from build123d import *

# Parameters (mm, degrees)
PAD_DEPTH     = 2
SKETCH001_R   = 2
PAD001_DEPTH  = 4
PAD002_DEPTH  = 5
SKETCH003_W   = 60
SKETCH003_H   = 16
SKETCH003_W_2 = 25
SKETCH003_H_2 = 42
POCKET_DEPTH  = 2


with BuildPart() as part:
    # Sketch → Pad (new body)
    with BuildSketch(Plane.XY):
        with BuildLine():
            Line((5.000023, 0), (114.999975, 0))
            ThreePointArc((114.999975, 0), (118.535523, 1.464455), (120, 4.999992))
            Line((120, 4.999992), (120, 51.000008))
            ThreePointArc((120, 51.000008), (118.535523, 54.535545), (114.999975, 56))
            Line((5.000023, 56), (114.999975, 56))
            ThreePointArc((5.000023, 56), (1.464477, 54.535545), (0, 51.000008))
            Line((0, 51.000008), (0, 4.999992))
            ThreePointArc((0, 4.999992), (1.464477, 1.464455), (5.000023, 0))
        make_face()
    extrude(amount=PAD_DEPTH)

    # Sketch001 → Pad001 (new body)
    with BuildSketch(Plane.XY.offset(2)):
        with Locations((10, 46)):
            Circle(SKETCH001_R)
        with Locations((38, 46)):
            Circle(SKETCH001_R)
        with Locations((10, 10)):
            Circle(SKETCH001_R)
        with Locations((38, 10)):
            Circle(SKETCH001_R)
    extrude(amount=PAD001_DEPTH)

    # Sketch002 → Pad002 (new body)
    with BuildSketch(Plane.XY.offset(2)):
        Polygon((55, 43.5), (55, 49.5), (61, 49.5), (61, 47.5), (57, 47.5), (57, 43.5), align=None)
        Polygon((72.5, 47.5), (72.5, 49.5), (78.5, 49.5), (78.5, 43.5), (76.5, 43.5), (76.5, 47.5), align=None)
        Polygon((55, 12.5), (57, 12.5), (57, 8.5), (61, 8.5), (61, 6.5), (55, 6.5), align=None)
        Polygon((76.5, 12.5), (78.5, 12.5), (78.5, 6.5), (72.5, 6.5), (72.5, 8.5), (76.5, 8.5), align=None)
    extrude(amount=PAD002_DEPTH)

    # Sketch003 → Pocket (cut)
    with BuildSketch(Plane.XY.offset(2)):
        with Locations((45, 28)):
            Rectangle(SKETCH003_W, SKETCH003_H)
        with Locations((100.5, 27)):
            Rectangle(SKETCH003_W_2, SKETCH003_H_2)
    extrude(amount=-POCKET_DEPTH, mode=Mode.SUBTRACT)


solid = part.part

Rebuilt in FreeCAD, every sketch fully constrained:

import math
import FreeCAD as App
import Part
import Sketcher

V = App.Vector


def add_polygon(sketch, points):
    """Adds a closed chain of lines whose ends are joined by coincident constraints."""
    first, n = sketch.GeometryCount, len(points)
    for a, b in zip(points, points[1:] + points[:1]):
        sketch.addGeometry(Part.LineSegment(App.Vector(*a, 0), App.Vector(*b, 0)), False)
    for i in range(n):
        sketch.addConstraint(Sketcher.Constraint("Coincident", first + i, 2, first + (i + 1) % n, 1))

doc = App.newDocument("Part")
body = doc.addObject("PartDesign::Body", "Body")

# Sketch on XY plane
sketch1 = doc.addObject("Sketcher::SketchObject", "Sketch")
body.addObject(sketch1)
sketch1.AttachmentSupport = (doc.XY_Plane, [""])
sketch1.MapMode = "FlatFace"
sketch1.addGeometry(Part.LineSegment(V(5, 0, 0), V(115, 0, 0)), False)
sketch1.addGeometry(Part.ArcOfCircle(Part.Circle(V(115, 5, 0), V(0, 0, 1), 5), math.radians(-90), math.radians(0)), False)
sketch1.addGeometry(Part.LineSegment(V(120, 5, 0), V(120, 51, 0)), False)
sketch1.addGeometry(Part.ArcOfCircle(Part.Circle(V(115, 51, 0), V(0, 0, 1), 5), math.radians(0), math.radians(90)), False)
sketch1.addGeometry(Part.LineSegment(V(115, 56, 0), V(5, 56, 0)), False)
sketch1.addGeometry(Part.ArcOfCircle(Part.Circle(V(5, 51, 0), V(0, 0, 1), 5), math.radians(90), math.radians(180)), False)
sketch1.addGeometry(Part.LineSegment(V(0, 51, 0), V(0, 5, 0)), False)
sketch1.addGeometry(Part.ArcOfCircle(Part.Circle(V(5, 5, 0), V(0, 0, 1), 5), math.radians(-180), math.radians(-90)), False)
sketch1.addConstraint(Sketcher.Constraint("Coincident", 0, 2, 1, 1))
sketch1.addConstraint(Sketcher.Constraint("Tangent", 1, 2, 2, 1))
sketch1.addConstraint(Sketcher.Constraint("Tangent", 2, 2, 3, 1))
sketch1.addConstraint(Sketcher.Constraint("Coincident", 3, 2, 4, 1))
sketch1.addConstraint(Sketcher.Constraint("Coincident", 4, 2, 5, 1))
sketch1.addConstraint(Sketcher.Constraint("Tangent", 5, 2, 6, 1))
sketch1.addConstraint(Sketcher.Constraint("Tangent", 6, 2, 7, 1))
sketch1.addConstraint(Sketcher.Constraint("Coincident", 7, 2, 0, 1))
sketch1.addConstraint(Sketcher.Constraint("Horizontal", 0))
sketch1.addConstraint(Sketcher.Constraint("Vertical", 2))
sketch1.addConstraint(Sketcher.Constraint("Horizontal", 4))
sketch1.addConstraint(Sketcher.Constraint("Vertical", 6))
sketch1.addConstraint(Sketcher.Constraint("Equal", 1, 3))
sketch1.addConstraint(Sketcher.Constraint("Equal", 3, 5))
sketch1.addConstraint(Sketcher.Constraint("Equal", 5, 7))
sketch1.addConstraint(Sketcher.Constraint("PointOnObject", 0, 2, -1))
sketch1.addConstraint(Sketcher.Constraint("PointOnObject", 5, 2, -2))
sketch1.addConstraint(Sketcher.Constraint("Vertical", 0, 2, 3, 2))
sketch1.addConstraint(Sketcher.Constraint("Vertical", 4, 2, 7, 2))
sketch1.addConstraint(Sketcher.Constraint("Radius", 1, 5.0))
sketch1.addConstraint(Sketcher.Constraint("DistanceX", -1, 1, 1, 3, 115.0))
sketch1.addConstraint(Sketcher.Constraint("DistanceY", -1, 1, 3, 3, 51.0))
sketch1.addConstraint(Sketcher.Constraint("DistanceX", 0, 1, 0, 2, 109.999952))
sketch1.addConstraint(Sketcher.Constraint("DistanceX", -1, 1, 0, 2, 114.999975))
pad1 = doc.addObject("PartDesign::Pad", "Pad")
body.addObject(pad1)
pad1.Profile = sketch1
pad1.Length = 2

# Sketch on XY plane
sketch2 = doc.addObject("Sketcher::SketchObject", "Sketch001")
body.addObject(sketch2)
sketch2.AttachmentSupport = (doc.XY_Plane, [""])
sketch2.MapMode = "FlatFace"
sketch2.AttachmentOffset = App.Placement(V(0, 0, 2), App.Rotation())
sketch2.addGeometry(Part.Circle(V(10, 46, 0), V(0, 0, 1), 2), False)
sketch2.addGeometry(Part.Circle(V(38, 46, 0), V(0, 0, 1), 2), False)
sketch2.addGeometry(Part.Circle(V(10, 10, 0), V(0, 0, 1), 2), False)
sketch2.addGeometry(Part.Circle(V(38, 10, 0), V(0, 0, 1), 2), False)
sketch2.addConstraint(Sketcher.Constraint("Equal", 0, 1))
sketch2.addConstraint(Sketcher.Constraint("Equal", 1, 2))
sketch2.addConstraint(Sketcher.Constraint("Equal", 2, 3))
sketch2.addConstraint(Sketcher.Constraint("Horizontal", 0, 3, 1, 3))
sketch2.addConstraint(Sketcher.Constraint("Horizontal", 2, 3, 3, 3))
sketch2.addConstraint(Sketcher.Constraint("Vertical", 0, 3, 2, 3))
sketch2.addConstraint(Sketcher.Constraint("Vertical", 1, 3, 3, 3))
sketch2.addConstraint(Sketcher.Constraint("Diameter", 0, 4.0))
sketch2.addConstraint(Sketcher.Constraint("DistanceX", -1, 1, 0, 3, 10.0))
sketch2.addConstraint(Sketcher.Constraint("DistanceY", -1, 1, 0, 3, 46.0))
sketch2.addConstraint(Sketcher.Constraint("DistanceX", -1, 1, 1, 3, 38.0))
sketch2.addConstraint(Sketcher.Constraint("DistanceY", -1, 1, 2, 3, 10.0))
pad2 = doc.addObject("PartDesign::Pad", "Pad001")
body.addObject(pad2)
pad2.Profile = sketch2
pad2.Length = 4

# Sketch on XY plane
sketch3 = doc.addObject("Sketcher::SketchObject", "Sketch002")
body.addObject(sketch3)
sketch3.AttachmentSupport = (doc.XY_Plane, [""])
sketch3.MapMode = "FlatFace"
sketch3.AttachmentOffset = App.Placement(V(0, 0, 2), App.Rotation())
add_polygon(sketch3, [(55, 49.5), (55, 43.5), (57, 43.5), (57, 47.5), (61, 47.5), (61, 49.5)])  # lines 0-5
add_polygon(sketch3, [(72.5, 49.5), (72.5, 47.5), (76.5, 47.5), (76.5, 43.5), (78.5, 43.5), (78.5, 49.5)])  # lines 6-11
add_polygon(sketch3, [(57, 12.5), (55, 12.5), (55, 6.5), (61, 6.5), (61, 8.5), (57, 8.5)])  # lines 12-17
add_polygon(sketch3, [(78.5, 12.5), (76.5, 12.5), (76.5, 8.5), (72.5, 8.5), (72.5, 6.5), (78.5, 6.5)])  # lines 18-23
sketch3.addConstraint(Sketcher.Constraint("Vertical", 0))
sketch3.addConstraint(Sketcher.Constraint("Horizontal", 1))
sketch3.addConstraint(Sketcher.Constraint("Vertical", 2))
sketch3.addConstraint(Sketcher.Constraint("Horizontal", 3))
sketch3.addConstraint(Sketcher.Constraint("Vertical", 4))
sketch3.addConstraint(Sketcher.Constraint("Horizontal", 5))
sketch3.addConstraint(Sketcher.Constraint("Vertical", 6))
sketch3.addConstraint(Sketcher.Constraint("Horizontal", 7))
sketch3.addConstraint(Sketcher.Constraint("Vertical", 8))
sketch3.addConstraint(Sketcher.Constraint("Horizontal", 9))
sketch3.addConstraint(Sketcher.Constraint("Vertical", 10))
sketch3.addConstraint(Sketcher.Constraint("Horizontal", 11))
sketch3.addConstraint(Sketcher.Constraint("Horizontal", 12))
sketch3.addConstraint(Sketcher.Constraint("Vertical", 13))
sketch3.addConstraint(Sketcher.Constraint("Horizontal", 14))
sketch3.addConstraint(Sketcher.Constraint("Vertical", 15))
sketch3.addConstraint(Sketcher.Constraint("Horizontal", 16))
sketch3.addConstraint(Sketcher.Constraint("Vertical", 17))
sketch3.addConstraint(Sketcher.Constraint("Horizontal", 18))
sketch3.addConstraint(Sketcher.Constraint("Vertical", 19))
sketch3.addConstraint(Sketcher.Constraint("Horizontal", 20))
sketch3.addConstraint(Sketcher.Constraint("Vertical", 21))
sketch3.addConstraint(Sketcher.Constraint("Horizontal", 22))
sketch3.addConstraint(Sketcher.Constraint("Vertical", 23))
sketch3.addConstraint(Sketcher.Constraint("Horizontal", 3, 2, 6, 2))
sketch3.addConstraint(Sketcher.Constraint("Horizontal", 1, 2, 8, 2))
sketch3.addConstraint(Sketcher.Constraint("Horizontal", 5, 2, 10, 2))
sketch3.addConstraint(Sketcher.Constraint("Horizontal", 17, 2, 18, 2))
sketch3.addConstraint(Sketcher.Constraint("Horizontal", 16, 2, 19, 2))
sketch3.addConstraint(Sketcher.Constraint("Horizontal", 14, 2, 21, 2))
sketch3.addConstraint(Sketcher.Constraint("Vertical", 5, 2, 12, 2))
sketch3.addConstraint(Sketcher.Constraint("Vertical", 4, 2, 14, 2))
sketch3.addConstraint(Sketcher.Constraint("Vertical", 2, 2, 16, 2))
sketch3.addConstraint(Sketcher.Constraint("Vertical", 8, 2, 18, 2))
sketch3.addConstraint(Sketcher.Constraint("Vertical", 11, 2, 20, 2))
sketch3.addConstraint(Sketcher.Constraint("Vertical", 10, 2, 22, 2))
sketch3.addConstraint(Sketcher.Constraint("Equal", 3, 7))
sketch3.addConstraint(Sketcher.Constraint("Equal", 1, 9))
sketch3.addConstraint(Sketcher.Constraint("Equal", 22, 0))
sketch3.addConstraint(Sketcher.Constraint("Equal", 20, 2))
sketch3.addConstraint(Sketcher.Constraint("Equal", 10, 13))
sketch3.addConstraint(Sketcher.Constraint("Equal", 6, 15))
sketch3.addConstraint(Sketcher.Constraint("DistanceX", 1, 1, 1, 2, 2.0))
sketch3.addConstraint(Sketcher.Constraint("DistanceX", 3, 1, 3, 2, 4.0))
sketch3.addConstraint(Sketcher.Constraint("DistanceX", -1, 1, 0, 2, 55.0))
sketch3.addConstraint(Sketcher.Constraint("DistanceY", 12, 2, 0, 2, 31.0))
sketch3.addConstraint(Sketcher.Constraint("DistanceY", -1, 1, 0, 2, 43.5))
sketch3.addConstraint(Sketcher.Constraint("DistanceX", -1, 1, 6, 2, 72.5))
pad3 = doc.addObject("PartDesign::Pad", "Pad002")
body.addObject(pad3)
pad3.Profile = sketch3
pad3.Length = 5

# Sketch on XY plane
sketch4 = doc.addObject("Sketcher::SketchObject", "Sketch003")
body.addObject(sketch4)
sketch4.AttachmentSupport = (doc.XY_Plane, [""])
sketch4.MapMode = "FlatFace"
sketch4.AttachmentOffset = App.Placement(V(0, 0, 2), App.Rotation())
add_polygon(sketch4, [(15, 36), (15, 20), (75, 20), (75, 36)])  # lines 0-3
add_polygon(sketch4, [(88, 48), (88, 6), (113, 6), (113, 48)])  # lines 4-7
sketch4.addConstraint(Sketcher.Constraint("Vertical", 0))
sketch4.addConstraint(Sketcher.Constraint("Horizontal", 1))
sketch4.addConstraint(Sketcher.Constraint("Vertical", 2))
sketch4.addConstraint(Sketcher.Constraint("Horizontal", 3))
sketch4.addConstraint(Sketcher.Constraint("Vertical", 4))
sketch4.addConstraint(Sketcher.Constraint("Horizontal", 5))
sketch4.addConstraint(Sketcher.Constraint("Vertical", 6))
sketch4.addConstraint(Sketcher.Constraint("Horizontal", 7))
sketch4.addConstraint(Sketcher.Constraint("DistanceX", 1, 1, 1, 2, 60.0))
sketch4.addConstraint(Sketcher.Constraint("DistanceX", 5, 1, 5, 2, 25.0))
sketch4.addConstraint(Sketcher.Constraint("DistanceY", 0, 2, 0, 1, 16.0))
sketch4.addConstraint(Sketcher.Constraint("DistanceY", 4, 2, 4, 1, 42.0))
sketch4.addConstraint(Sketcher.Constraint("DistanceX", -1, 1, 0, 2, 15.0))
sketch4.addConstraint(Sketcher.Constraint("DistanceY", -1, 1, 0, 2, 20.0))
sketch4.addConstraint(Sketcher.Constraint("DistanceX", -1, 1, 4, 2, 88.0))
sketch4.addConstraint(Sketcher.Constraint("DistanceY", -1, 1, 4, 2, 6.0))
pocket1 = doc.addObject("PartDesign::Pocket", "Pocket")
body.addObject(pocket1)
pocket1.Profile = sketch4
pocket1.Length = 2

doc.recompute()
